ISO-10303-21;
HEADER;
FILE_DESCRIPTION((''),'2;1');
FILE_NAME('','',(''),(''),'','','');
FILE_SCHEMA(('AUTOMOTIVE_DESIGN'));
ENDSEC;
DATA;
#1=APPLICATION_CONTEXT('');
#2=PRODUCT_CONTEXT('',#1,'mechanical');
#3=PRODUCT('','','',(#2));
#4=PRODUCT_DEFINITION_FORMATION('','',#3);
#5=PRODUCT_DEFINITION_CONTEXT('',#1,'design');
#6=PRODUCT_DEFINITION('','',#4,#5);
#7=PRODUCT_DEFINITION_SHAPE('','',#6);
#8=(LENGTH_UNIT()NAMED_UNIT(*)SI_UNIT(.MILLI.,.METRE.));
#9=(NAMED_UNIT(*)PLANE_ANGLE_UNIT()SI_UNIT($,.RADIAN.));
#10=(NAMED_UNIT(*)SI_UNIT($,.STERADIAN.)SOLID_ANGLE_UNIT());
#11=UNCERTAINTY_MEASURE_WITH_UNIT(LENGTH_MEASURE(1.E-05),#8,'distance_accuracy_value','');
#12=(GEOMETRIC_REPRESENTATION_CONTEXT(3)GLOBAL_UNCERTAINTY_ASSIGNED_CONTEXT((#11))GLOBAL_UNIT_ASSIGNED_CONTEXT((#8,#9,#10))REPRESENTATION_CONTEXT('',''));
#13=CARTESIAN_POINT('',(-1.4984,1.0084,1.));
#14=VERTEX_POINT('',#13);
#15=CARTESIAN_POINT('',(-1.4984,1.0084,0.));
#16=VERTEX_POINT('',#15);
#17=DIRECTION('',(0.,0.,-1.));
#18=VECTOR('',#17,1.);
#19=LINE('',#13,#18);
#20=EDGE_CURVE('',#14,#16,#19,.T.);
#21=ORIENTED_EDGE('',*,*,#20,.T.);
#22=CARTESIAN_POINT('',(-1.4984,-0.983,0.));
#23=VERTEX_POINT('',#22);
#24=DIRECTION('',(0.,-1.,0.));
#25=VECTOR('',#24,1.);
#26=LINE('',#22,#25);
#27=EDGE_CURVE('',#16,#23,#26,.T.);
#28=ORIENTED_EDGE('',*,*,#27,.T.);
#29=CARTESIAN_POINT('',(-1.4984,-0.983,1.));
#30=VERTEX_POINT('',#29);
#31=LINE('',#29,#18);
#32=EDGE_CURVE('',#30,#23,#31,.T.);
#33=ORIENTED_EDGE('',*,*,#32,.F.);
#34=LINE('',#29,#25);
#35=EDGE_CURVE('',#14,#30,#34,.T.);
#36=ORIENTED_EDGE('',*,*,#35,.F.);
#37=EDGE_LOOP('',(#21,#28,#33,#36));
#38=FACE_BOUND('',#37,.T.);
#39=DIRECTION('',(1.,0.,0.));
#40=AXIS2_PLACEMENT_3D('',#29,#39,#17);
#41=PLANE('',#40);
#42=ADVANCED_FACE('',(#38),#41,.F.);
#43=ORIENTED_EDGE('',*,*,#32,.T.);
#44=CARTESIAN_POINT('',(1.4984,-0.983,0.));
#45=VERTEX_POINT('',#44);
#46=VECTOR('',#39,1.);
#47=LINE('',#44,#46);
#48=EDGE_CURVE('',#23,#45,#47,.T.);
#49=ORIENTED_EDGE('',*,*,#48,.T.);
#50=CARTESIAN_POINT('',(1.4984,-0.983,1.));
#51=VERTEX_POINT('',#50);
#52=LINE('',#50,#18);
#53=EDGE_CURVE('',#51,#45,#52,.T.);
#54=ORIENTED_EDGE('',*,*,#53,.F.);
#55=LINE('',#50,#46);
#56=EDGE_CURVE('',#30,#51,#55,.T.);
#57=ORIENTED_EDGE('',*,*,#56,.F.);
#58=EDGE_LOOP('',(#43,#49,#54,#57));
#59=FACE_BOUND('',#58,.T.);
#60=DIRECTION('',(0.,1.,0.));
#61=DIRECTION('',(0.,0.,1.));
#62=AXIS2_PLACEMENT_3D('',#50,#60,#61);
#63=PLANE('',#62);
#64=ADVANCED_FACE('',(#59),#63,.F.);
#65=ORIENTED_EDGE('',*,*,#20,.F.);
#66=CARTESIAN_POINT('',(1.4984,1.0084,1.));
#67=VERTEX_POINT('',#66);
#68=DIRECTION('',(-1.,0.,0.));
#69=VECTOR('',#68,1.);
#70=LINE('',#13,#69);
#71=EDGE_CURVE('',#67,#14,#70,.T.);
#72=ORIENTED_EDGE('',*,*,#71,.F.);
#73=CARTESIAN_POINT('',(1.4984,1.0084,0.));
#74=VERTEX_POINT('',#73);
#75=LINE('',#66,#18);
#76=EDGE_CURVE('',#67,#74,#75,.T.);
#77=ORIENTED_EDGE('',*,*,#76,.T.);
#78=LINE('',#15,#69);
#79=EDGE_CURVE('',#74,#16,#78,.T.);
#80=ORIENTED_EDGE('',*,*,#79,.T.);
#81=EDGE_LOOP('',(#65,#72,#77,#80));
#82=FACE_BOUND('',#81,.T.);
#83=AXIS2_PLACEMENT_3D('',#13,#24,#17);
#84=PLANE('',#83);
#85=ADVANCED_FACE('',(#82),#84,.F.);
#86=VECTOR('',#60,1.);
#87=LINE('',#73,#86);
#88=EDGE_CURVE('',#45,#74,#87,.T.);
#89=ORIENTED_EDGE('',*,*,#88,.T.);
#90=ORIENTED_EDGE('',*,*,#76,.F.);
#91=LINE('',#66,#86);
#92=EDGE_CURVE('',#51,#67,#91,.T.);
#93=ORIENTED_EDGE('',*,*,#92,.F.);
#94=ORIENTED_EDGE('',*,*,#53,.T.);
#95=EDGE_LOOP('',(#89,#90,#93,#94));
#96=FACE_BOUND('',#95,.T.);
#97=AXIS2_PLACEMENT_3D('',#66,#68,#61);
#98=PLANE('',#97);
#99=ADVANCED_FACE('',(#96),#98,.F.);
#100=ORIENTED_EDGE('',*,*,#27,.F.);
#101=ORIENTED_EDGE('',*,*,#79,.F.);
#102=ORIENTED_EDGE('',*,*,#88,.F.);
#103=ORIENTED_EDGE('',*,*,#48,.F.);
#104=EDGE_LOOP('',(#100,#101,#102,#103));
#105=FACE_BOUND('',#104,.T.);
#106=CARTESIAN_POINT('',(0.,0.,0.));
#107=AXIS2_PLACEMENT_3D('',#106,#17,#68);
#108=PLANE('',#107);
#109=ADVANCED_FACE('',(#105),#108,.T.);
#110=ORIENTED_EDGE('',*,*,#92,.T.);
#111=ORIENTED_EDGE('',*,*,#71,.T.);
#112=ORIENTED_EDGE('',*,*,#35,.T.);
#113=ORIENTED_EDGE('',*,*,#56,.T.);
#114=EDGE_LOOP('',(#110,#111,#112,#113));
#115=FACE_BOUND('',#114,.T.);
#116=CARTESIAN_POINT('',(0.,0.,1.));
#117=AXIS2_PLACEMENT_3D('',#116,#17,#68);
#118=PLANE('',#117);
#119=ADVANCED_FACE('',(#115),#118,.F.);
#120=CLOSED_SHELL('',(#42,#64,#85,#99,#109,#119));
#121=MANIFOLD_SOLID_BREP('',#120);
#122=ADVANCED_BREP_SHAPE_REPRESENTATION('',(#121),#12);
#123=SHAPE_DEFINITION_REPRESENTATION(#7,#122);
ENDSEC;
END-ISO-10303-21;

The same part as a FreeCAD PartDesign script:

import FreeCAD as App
import Part
import Sketcher

doc = App.newDocument("Part")
body = doc.addObject("PartDesign::Body", "Body")

# Sketch on XY plane
sketch1 = body.newObject("Sketcher::SketchObject", "Sketch")
sketch1.AttachmentSupport = (doc.getObject("XY_Plane"), [""])
sketch1.MapMode = "FlatFace"
sketch1.addGeometry([
    Part.LineSegment(App.Vector(-1.5, 1, 0), App.Vector(-1.5, -1, 0)),
    Part.LineSegment(App.Vector(-1.5, -1, 0), App.Vector(1.5, -1, 0)),
    Part.LineSegment(App.Vector(1.5, -1, 0), App.Vector(1.5, 1, 0)),
    Part.LineSegment(App.Vector(1.5, 1, 0), App.Vector(-1.5, 1, 0)),
], False)
sketch1.addConstraint([
    Sketcher.Constraint("Coincident", 0, 2, 1, 1),
    Sketcher.Constraint("Coincident", 1, 2, 2, 1),
    Sketcher.Constraint("Coincident", 2, 2, 3, 1),
    Sketcher.Constraint("Coincident", 3, 2, 0, 1),
    Sketcher.Constraint("Vertical", 0),
    Sketcher.Constraint("Horizontal", 1),
    Sketcher.Constraint("Vertical", 2),
    Sketcher.Constraint("Horizontal", 3),
    Sketcher.Constraint("DistanceX", 1, 1, 1, 2, 2.9968),
    Sketcher.Constraint("DistanceY", 0, 2, 0, 1, 1.9914),
    Sketcher.Constraint("DistanceY", 0, 2, -1, 1, 0.983),
    Sketcher.Constraint("DistanceX", 0, 2, -1, 1, 1.4984),
])
pad1 = body.newObject("PartDesign::Pad", "Pad")
pad1.Profile = sketch1
pad1.Length = 1

doc.recompute()
